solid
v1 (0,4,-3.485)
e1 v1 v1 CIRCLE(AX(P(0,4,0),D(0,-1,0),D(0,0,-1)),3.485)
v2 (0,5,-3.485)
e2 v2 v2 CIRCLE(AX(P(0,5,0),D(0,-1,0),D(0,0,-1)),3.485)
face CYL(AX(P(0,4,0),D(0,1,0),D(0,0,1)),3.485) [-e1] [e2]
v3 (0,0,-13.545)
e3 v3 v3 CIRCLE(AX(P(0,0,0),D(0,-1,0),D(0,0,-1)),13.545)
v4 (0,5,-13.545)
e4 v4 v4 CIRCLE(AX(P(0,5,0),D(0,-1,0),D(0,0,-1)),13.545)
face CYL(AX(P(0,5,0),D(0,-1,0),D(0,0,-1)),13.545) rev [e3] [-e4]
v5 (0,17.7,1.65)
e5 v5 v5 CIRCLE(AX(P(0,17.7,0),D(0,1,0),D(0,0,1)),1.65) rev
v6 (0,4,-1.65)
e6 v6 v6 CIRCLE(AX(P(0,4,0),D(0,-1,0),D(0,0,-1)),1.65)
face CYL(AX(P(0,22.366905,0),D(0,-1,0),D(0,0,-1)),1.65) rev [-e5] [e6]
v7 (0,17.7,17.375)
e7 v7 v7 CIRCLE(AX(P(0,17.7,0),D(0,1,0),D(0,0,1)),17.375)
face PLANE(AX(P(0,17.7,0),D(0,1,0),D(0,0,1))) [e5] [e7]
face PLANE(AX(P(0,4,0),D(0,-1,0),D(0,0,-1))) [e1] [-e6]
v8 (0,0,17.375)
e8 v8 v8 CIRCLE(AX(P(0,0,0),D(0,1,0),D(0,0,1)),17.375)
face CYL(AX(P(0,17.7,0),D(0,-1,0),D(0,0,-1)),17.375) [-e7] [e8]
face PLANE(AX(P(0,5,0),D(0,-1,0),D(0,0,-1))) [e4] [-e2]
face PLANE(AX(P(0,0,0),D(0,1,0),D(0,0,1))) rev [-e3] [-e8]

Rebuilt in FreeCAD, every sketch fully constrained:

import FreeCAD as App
import Part
import Sketcher

V = App.Vector

doc = App.newDocument("Part")
body = doc.addObject("PartDesign::Body", "Body")

sketch1 = body.newObject("Sketcher::SketchObject", "Sketch")
sketch1.AttachmentSupport = (doc.getObject("XZ_Plane"), [""])
sketch1.MapMode = "FlatFace"
sketch1.addGeometry(Part.Circle(V(0, 0, 0), V(0, 0, 1), 17), False)
sketch1.addConstraint(Sketcher.Constraint("Coincident", 0, 3, -1, 1))
sketch1.addConstraint(Sketcher.Constraint("Diameter", 0, 34.75))
pad1 = body.newObject("PartDesign::Pad", "Pad")
pad1.Profile = sketch1
pad1.Length = 17.7
pad1.Reversed = True

sketch2 = body.newObject("Sketcher::SketchObject", "Sketch001")
sketch2.AttachmentSupport = (doc.getObject("XZ_Plane"), [""])
sketch2.MapMode = "FlatFace"
sketch2.addGeometry(Part.Circle(V(0, 0, 0), V(0, 0, 1), 14), False)
sketch2.addConstraint(Sketcher.Constraint("Coincident", 0, 3, -1, 1))
sketch2.addConstraint(Sketcher.Constraint("Diameter", 0, 27.09))
pocket1 = body.newObject("PartDesign::Pocket", "Pocket")
pocket1.Profile = sketch2
pocket1.Length = 5

sketch3 = body.newObject("Sketcher::SketchObject", "Sketch002")
sketch3.AttachmentSupport = (doc.getObject("XZ_Plane"), [""])
sketch3.MapMode = "FlatFace"
sketch3.AttachmentOffset = App.Placement(V(0, 0, -5), App.Rotation())
sketch3.addGeometry(Part.Circle(V(0, 0, 0), V(0, 0, 1), 3.5), False)
sketch3.addConstraint(Sketcher.Constraint("Coincident", 0, 3, -1, 1))
sketch3.addConstraint(Sketcher.Constraint("Diameter", 0, 6.97))
pad2 = body.newObject("PartDesign::Pad", "Pad001")
pad2.Profile = sketch3
pad2.Length = 1

sketch4 = body.newObject("Sketcher::SketchObject", "Sketch003")
sketch4.AttachmentSupport = (doc.getObject("XZ_Plane"), [""])
sketch4.MapMode = "FlatFace"
sketch4.AttachmentOffset = App.Placement(V(0, 0, -4), App.Rotation())
sketch4.addGeometry(Part.Circle(V(0, 0, 0), V(0, 0, 1), 1.6), False)
sketch4.addConstraint(Sketcher.Constraint("Coincident", 0, 3, -1, 1))
sketch4.addConstraint(Sketcher.Constraint("Diameter", 0, 3.3))
pocket2 = body.newObject("PartDesign::Pocket", "Pocket001")
pocket2.Profile = sketch4
pocket2.Length = 13.7

doc.recompute()
